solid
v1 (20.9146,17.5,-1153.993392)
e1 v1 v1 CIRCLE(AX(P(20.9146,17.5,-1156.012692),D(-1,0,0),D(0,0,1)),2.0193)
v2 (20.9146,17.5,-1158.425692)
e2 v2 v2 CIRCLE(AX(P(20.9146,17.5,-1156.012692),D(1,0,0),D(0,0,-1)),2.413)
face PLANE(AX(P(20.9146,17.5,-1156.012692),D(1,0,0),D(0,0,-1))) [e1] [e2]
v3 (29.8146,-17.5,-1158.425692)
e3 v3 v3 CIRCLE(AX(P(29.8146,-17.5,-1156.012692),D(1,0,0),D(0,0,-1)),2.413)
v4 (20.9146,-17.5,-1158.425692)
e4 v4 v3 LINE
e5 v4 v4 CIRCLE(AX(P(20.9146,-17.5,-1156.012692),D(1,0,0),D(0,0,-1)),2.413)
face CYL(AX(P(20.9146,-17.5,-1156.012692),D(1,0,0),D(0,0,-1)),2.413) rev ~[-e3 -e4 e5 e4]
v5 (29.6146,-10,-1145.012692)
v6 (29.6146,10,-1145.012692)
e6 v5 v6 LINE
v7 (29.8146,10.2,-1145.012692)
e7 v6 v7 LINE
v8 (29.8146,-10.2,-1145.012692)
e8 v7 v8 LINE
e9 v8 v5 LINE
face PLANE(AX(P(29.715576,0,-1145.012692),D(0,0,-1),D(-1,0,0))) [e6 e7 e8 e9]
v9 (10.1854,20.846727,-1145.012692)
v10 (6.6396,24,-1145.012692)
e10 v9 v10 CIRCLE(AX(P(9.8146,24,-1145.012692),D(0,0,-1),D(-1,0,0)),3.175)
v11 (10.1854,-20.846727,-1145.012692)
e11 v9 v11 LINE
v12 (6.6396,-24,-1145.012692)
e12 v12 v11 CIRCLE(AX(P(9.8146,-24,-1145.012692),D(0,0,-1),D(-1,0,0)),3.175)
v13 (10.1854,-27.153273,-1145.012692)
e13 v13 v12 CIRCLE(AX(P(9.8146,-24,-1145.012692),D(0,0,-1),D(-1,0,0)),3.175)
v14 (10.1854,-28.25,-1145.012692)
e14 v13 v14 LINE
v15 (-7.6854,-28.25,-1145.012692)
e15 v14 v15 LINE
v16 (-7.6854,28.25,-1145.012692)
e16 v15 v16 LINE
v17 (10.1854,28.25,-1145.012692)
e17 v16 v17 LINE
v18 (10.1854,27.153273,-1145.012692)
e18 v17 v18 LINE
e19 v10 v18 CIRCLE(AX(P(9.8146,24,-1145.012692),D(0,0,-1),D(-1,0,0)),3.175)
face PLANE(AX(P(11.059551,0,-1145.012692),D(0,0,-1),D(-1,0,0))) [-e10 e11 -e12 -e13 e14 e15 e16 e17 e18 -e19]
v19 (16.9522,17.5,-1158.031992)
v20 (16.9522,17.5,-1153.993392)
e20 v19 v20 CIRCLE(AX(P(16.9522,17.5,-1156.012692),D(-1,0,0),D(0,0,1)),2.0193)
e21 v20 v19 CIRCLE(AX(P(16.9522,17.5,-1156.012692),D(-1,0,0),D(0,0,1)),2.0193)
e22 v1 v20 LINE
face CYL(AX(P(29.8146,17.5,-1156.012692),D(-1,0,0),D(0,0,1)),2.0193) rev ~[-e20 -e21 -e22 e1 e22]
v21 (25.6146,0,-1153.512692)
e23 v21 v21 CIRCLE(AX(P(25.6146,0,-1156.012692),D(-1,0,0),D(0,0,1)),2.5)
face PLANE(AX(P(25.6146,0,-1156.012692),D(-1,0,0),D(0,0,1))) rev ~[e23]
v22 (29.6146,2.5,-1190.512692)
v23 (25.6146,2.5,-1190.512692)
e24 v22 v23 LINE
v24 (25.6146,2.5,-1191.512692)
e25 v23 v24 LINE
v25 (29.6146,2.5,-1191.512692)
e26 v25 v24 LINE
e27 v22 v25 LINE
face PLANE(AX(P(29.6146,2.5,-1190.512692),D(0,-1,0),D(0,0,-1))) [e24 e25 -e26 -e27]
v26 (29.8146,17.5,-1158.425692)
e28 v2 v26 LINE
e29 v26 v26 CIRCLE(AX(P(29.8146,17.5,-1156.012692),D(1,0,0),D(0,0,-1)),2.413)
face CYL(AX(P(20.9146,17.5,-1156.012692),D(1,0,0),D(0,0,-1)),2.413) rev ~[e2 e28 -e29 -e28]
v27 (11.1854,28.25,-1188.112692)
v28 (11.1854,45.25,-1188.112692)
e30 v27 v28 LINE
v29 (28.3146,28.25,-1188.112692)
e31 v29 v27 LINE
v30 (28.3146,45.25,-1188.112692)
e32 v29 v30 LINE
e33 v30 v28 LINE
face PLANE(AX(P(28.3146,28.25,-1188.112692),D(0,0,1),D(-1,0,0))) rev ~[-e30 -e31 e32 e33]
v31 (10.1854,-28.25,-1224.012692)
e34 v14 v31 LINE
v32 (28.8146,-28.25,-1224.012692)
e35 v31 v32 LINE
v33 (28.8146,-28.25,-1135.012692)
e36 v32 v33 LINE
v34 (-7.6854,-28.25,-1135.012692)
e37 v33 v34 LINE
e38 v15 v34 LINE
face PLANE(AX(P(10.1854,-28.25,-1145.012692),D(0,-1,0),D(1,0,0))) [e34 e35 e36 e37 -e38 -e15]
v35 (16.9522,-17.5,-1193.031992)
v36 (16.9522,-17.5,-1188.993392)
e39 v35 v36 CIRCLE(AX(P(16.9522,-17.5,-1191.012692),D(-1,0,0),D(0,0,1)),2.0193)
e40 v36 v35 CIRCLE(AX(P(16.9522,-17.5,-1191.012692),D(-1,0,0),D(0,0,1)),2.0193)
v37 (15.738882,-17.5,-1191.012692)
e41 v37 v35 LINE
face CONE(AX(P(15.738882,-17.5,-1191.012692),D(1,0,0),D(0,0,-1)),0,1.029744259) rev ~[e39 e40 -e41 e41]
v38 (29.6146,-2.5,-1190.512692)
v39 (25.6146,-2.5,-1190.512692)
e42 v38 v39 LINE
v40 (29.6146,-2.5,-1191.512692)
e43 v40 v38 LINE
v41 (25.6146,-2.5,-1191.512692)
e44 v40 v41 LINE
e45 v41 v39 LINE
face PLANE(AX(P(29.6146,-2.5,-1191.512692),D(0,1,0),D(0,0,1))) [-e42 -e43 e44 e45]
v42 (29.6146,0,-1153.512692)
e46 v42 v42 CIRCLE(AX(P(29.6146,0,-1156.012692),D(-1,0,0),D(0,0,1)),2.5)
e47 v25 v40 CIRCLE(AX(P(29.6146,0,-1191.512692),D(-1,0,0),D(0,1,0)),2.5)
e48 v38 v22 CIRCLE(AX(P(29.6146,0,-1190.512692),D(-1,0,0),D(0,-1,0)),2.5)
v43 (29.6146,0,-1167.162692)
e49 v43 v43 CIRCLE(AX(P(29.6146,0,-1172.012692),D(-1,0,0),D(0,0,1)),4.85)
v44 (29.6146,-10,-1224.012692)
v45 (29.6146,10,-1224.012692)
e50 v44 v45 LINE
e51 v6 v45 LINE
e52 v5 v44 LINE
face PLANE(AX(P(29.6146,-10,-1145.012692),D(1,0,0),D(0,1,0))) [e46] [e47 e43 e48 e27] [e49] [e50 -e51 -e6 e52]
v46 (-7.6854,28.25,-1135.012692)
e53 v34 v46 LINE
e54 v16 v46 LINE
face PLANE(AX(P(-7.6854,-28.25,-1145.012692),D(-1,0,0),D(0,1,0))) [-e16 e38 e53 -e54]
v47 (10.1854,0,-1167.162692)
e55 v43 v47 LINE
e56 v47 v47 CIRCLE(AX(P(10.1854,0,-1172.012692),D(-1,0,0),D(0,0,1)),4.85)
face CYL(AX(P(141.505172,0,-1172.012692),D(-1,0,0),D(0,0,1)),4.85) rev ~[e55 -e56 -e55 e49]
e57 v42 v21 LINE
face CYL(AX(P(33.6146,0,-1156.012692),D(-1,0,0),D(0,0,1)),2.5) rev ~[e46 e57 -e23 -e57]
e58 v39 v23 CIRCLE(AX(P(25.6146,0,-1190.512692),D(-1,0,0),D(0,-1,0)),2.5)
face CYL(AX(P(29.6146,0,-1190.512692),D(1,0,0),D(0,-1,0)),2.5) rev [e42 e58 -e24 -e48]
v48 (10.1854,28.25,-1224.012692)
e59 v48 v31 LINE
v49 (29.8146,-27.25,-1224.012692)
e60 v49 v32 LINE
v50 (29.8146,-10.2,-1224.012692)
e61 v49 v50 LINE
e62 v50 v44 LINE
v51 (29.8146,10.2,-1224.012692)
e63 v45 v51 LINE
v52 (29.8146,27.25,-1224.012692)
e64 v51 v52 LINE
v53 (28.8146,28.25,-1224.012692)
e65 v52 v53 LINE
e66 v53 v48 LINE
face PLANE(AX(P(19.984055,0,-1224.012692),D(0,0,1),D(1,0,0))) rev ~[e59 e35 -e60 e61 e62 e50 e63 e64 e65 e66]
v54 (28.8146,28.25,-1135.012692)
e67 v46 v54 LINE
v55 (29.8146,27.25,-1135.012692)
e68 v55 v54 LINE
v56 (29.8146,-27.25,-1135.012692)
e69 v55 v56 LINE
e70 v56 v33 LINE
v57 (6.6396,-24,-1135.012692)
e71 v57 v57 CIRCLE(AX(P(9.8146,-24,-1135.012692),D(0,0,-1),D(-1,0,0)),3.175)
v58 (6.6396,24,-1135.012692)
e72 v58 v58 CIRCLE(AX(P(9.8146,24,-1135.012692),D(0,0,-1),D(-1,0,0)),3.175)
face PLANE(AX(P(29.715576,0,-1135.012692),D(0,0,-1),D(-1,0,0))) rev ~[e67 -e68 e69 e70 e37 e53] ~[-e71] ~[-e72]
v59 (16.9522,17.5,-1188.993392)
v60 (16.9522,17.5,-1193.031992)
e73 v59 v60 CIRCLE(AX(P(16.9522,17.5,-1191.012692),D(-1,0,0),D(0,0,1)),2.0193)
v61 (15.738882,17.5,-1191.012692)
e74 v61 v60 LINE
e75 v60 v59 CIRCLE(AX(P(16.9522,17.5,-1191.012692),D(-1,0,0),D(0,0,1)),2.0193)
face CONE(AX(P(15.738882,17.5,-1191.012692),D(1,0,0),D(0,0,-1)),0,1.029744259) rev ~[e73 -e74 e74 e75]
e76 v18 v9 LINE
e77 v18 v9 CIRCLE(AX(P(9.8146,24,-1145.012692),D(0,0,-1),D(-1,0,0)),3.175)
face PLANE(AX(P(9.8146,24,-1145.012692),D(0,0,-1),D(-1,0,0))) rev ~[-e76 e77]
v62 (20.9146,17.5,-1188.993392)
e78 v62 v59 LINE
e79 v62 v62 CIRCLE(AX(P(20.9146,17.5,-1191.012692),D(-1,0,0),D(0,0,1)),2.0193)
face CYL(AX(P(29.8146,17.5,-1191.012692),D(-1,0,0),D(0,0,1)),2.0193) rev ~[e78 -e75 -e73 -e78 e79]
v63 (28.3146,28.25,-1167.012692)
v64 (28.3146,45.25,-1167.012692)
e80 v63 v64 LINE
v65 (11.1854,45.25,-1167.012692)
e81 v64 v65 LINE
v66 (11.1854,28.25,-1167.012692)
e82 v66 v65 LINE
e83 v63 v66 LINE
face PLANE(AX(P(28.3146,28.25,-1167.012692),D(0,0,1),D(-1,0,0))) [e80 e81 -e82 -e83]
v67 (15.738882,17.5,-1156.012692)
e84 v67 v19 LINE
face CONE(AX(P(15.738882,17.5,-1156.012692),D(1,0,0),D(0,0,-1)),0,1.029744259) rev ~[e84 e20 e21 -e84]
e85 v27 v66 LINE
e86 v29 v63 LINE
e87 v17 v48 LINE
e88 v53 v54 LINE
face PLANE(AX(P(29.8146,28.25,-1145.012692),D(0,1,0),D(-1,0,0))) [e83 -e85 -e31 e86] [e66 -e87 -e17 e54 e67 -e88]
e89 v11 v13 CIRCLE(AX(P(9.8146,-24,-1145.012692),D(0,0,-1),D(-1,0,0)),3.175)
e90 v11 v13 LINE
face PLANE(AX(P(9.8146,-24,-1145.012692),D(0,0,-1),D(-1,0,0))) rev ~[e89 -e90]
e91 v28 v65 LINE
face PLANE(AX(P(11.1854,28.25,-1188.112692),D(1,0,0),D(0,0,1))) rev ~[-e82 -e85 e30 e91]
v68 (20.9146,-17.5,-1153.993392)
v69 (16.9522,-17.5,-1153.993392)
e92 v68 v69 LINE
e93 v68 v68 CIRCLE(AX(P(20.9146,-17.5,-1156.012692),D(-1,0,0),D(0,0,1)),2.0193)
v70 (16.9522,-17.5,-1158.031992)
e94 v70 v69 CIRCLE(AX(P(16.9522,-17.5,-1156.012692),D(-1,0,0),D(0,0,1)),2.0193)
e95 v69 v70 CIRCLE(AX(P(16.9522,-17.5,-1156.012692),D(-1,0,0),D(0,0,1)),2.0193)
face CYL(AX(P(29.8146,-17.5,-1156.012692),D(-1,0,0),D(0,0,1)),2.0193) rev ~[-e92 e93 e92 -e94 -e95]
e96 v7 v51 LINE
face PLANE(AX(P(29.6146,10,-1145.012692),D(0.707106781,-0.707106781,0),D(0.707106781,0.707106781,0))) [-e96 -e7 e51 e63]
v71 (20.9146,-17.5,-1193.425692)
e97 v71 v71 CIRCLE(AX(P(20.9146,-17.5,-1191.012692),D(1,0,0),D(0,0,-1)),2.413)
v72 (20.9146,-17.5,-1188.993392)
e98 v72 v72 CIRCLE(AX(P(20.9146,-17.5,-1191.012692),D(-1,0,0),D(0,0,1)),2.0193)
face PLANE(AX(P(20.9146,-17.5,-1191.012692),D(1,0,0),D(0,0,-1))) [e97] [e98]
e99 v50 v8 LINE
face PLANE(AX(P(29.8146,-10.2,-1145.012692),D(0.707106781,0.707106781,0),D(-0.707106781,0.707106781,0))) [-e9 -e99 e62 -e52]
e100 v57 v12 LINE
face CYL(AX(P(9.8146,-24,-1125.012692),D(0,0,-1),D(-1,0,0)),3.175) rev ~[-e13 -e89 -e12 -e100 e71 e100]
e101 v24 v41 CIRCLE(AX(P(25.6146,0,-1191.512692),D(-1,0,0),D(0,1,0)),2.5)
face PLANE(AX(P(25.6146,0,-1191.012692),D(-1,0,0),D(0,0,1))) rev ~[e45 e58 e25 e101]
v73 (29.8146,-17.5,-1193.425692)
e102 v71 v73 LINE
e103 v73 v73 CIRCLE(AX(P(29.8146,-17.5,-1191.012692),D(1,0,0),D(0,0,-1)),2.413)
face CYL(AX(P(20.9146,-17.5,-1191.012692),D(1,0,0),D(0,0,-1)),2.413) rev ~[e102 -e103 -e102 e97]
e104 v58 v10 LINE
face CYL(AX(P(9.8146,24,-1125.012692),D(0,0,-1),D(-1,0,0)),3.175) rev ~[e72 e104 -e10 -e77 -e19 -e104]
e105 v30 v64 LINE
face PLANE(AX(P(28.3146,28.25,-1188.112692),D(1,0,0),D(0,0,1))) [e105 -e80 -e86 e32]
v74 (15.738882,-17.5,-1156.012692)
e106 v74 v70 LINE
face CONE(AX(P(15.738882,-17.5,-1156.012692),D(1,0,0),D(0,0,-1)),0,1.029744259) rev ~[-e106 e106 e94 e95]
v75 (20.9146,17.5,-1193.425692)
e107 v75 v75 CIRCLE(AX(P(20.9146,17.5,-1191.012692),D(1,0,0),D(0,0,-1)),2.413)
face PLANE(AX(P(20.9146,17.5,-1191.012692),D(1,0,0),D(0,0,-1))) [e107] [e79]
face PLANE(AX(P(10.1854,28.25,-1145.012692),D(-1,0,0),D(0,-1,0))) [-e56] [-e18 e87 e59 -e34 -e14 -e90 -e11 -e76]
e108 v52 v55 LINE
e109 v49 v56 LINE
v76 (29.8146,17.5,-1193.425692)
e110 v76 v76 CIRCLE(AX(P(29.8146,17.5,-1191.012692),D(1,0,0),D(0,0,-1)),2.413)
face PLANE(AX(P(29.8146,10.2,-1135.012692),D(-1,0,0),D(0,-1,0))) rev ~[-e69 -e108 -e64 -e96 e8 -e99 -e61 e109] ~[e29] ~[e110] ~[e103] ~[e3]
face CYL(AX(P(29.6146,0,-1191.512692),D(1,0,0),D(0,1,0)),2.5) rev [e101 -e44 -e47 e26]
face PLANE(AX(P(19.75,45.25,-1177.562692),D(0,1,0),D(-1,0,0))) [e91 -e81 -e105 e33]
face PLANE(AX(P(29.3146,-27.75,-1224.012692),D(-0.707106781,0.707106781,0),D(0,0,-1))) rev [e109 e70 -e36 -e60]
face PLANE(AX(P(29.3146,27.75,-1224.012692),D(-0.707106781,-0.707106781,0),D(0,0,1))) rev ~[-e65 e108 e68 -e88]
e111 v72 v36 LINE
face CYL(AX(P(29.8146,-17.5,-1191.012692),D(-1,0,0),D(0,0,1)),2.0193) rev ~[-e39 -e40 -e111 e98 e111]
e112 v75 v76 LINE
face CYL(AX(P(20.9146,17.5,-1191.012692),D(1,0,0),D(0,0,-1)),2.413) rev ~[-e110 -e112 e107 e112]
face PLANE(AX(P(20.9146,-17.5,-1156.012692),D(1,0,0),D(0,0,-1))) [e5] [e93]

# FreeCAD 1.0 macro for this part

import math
import FreeCAD as App
import Part
import Sketcher


def edges_at(feature, points):
    """Names of the edges that pass closest to the given points."""
    edges = feature.Shape.Edges
    near = lambda p: min(range(len(edges)), key=lambda i: edges[i].distToShape(Part.Vertex(*p))[0])
    return sorted({f"Edge{near(p) + 1}" for p in points})


def add_polygon(sketch, points):
    """Adds a closed chain of lines whose ends are joined by coincident constraints."""
    first, n = sketch.GeometryCount, len(points)
    for a, b in zip(points, points[1:] + points[:1]):
        sketch.addGeometry(Part.LineSegment(App.Vector(*a, 0), App.Vector(*b, 0)), False)
    for i in range(n):
        sketch.addConstraint(Sketcher.Constraint("Coincident", first + i, 2, first + (i + 1) % n, 1))

doc = App.newDocument("Part")
body = doc.addObject("PartDesign::Body", "Body")

# Sketch on XY plane
sketch1 = body.newObject("Sketcher::SketchObject", "Sketch")
sketch1.AttachmentSupport = (doc.getObject("XY_Plane"), [""])
sketch1.MapMode = "FlatFace"
sketch1.AttachmentOffset = App.Placement(App.Vector(0, 0, -1145.012692), App.Rotation())
add_polygon(sketch1, [(29.81, 28.25), (-7.69, 28.25), (-7.69, -28.25), (29.81, -28.25), (29.81, -10.2), (29.61, -10), (29.61, 10), (29.81, 10.2)])  # lines 0-7
sketch1.addConstraint([
    Sketcher.Constraint("Horizontal", 0),
    Sketcher.Constraint("Vertical", 1),
    Sketcher.Constraint("Horizontal", 2),
    Sketcher.Constraint("Vertical", 3),
    Sketcher.Constraint("Vertical", 5),
    Sketcher.Constraint("Vertical", 7),
    Sketcher.Constraint("Symmetric", 3, 2, 6, 2, -1),
    Sketcher.Constraint("Perpendicular", 4, 6),
    Sketcher.Constraint("Equal", 3, 7),
    Sketcher.Constraint("Equal", 4, 6),
    Sketcher.Constraint("DistanceY", 5, 1, 5, 2, 20.0),
    Sketcher.Constraint("DistanceX", 0, 2, 0, 1, 37.5),
    Sketcher.Constraint("DistanceY", 1, 2, 1, 1, 56.5),
    Sketcher.Constraint("DistanceY", 3, 1, 3, 2, 18.05),
    Sketcher.Constraint("DistanceX", 0, 2, -1, 1, 7.6854),
])
pad1 = body.newObject("PartDesign::Pad", "Pad")
pad1.Profile = sketch1
pad1.Length = 10

# Sketch on XY plane
sketch2 = body.newObject("Sketcher::SketchObject", "Sketch001")
sketch2.AttachmentSupport = (doc.getObject("XY_Plane"), [""])
sketch2.MapMode = "FlatFace"
sketch2.AttachmentOffset = App.Placement(App.Vector(0, 0, -1145.012692), App.Rotation())
add_polygon(sketch2, [(29.81, 28.25), (29.81, 10.2), (29.61, 10), (29.61, -10), (29.81, -10.2), (29.81, -28.25), (10.19, -28.25), (10.19, 28.25)])  # lines 0-7
sketch2.addConstraint([
    Sketcher.Constraint("Vertical", 0),
    Sketcher.Constraint("Vertical", 2),
    Sketcher.Constraint("Vertical", 4),
    Sketcher.Constraint("Horizontal", 5),
    Sketcher.Constraint("Vertical", 6),
    Sketcher.Constraint("Horizontal", 7),
    Sketcher.Constraint("Symmetric", 0, 2, 3, 2, -1),
    Sketcher.Constraint("Perpendicular", 1, 3),
    Sketcher.Constraint("Equal", 0, 4),
    Sketcher.Constraint("Equal", 1, 3),
    Sketcher.Constraint("DistanceY", 2, 2, 2, 1, 20.0),
    Sketcher.Constraint("DistanceY", 6, 1, 6, 2, 56.5),
    Sketcher.Constraint("DistanceY", 0, 2, 0, 1, 18.05),
    Sketcher.Constraint("DistanceX", 5, 2, 5, 1, 19.6292),
    Sketcher.Constraint("DistanceX", -1, 1, 0, 2, 29.8146),
])
pad2 = body.newObject("PartDesign::Pad", "Pad001")
pad2.Profile = sketch2
pad2.Length = 79
pad2.Reversed = True

# Sketch on XY plane
sketch3 = body.newObject("Sketcher::SketchObject", "Sketch002")
sketch3.AttachmentSupport = (doc.getObject("XY_Plane"), [""])
sketch3.MapMode = "FlatFace"
sketch3.AttachmentOffset = App.Placement(App.Vector(0, 0, -1135.012692), App.Rotation())
add_polygon(sketch3, [(29.61, -10), (29.81, -10.2), (29.81, 10.2), (29.61, 10)])  # lines 0-3
sketch3.addConstraint([
    Sketcher.Constraint("Vertical", 1),
    Sketcher.Constraint("Vertical", 3),
    Sketcher.Constraint("Perpendicular", 0, 2),
    Sketcher.Constraint("Equal", 0, 2),
    Sketcher.Constraint("DistanceY", 3, 2, 3, 1, 20.0),
    Sketcher.Constraint("DistanceY", 1, 1, 1, 2, 20.4),
    Sketcher.Constraint("DistanceY", -1, 1, 2, 2, 10.0),
    Sketcher.Constraint("DistanceX", -1, 1, 0, 2, 29.8146),
])
pad3 = body.newObject("PartDesign::Pad", "Pad002")
pad3.Profile = sketch3
pad3.Length = 10
pad3.Reversed = True

# Sketch on YZ plane
sketch4 = body.newObject("Sketcher::SketchObject", "Sketch003")
sketch4.AttachmentSupport = (doc.getObject("YZ_Plane"), [""])
sketch4.MapMode = "FlatFace"
sketch4.AttachmentOffset = App.Placement(App.Vector(0, 0, 29.6146), App.Rotation())
sketch4.addGeometry(Part.Circle(App.Vector(0, -1172, 0), App.Vector(0, 0, 1), 4.8), False)
sketch4.addConstraint([
    Sketcher.Constraint("PointOnObject", 0, 3, -2),
    Sketcher.Constraint("Diameter", 0, 9.7),
    Sketcher.Constraint("DistanceY", 0, 3, -1, 1, 1172.012692),
])
doc.recompute()
hole = body.newObject("PartDesign::Hole", "Hole")
hole.Profile = sketch4
hole.ThreadType = "None"
hole.Diameter = 9.7
hole.DepthType = "ThroughAll"

# Sketch on YZ plane
sketch5 = body.newObject("Sketcher::SketchObject", "Sketch004")
sketch5.AttachmentSupport = (doc.getObject("YZ_Plane"), [""])
sketch5.MapMode = "FlatFace"
sketch5.AttachmentOffset = App.Placement(App.Vector(0, 0, 29.8146), App.Rotation())
sketch5.addGeometry([
    Part.Circle(App.Vector(17.5, -1156, 0), App.Vector(0, 0, 1), 2),
    Part.Circle(App.Vector(17.5, -1191, 0), App.Vector(0, 0, 1), 2),
    Part.Circle(App.Vector(-17.5, -1156, 0), App.Vector(0, 0, 1), 2),
    Part.Circle(App.Vector(-17.5, -1191, 0), App.Vector(0, 0, 1), 2),
], False)
sketch5.addConstraint([
    Sketcher.Constraint("Equal", 0, 1),
    Sketcher.Constraint("Equal", 1, 2),
    Sketcher.Constraint("Equal", 2, 3),
    Sketcher.Constraint("Symmetric", 0, 3, 2, 3, -2),
    Sketcher.Constraint("Symmetric", 1, 3, 3, 3, -2),
    Sketcher.Constraint("Vertical", 0, 3, 1, 3),
    Sketcher.Constraint("DistanceY", 1, 3, 0, 3, 35.0),
    Sketcher.Constraint("DistanceX", 2, 3, 0, 3, 35.0),
    Sketcher.Constraint("Diameter", 0, 4.0386),
    Sketcher.Constraint("DistanceY", 0, 3, -1, 1, 1156.012692),
])
doc.recompute()
hole2 = body.newObject("PartDesign::Hole", "Hole001")
hole2.Profile = sketch5
hole2.ThreadType = "None"
hole2.Diameter = 4.0386
hole2.DepthType = "Dimension"
hole2.Depth = 12.8624
hole2.DrillPoint = "Angled"
hole2.DrillPointAngle = 118
hole2.HoleCutType = "Counterbore"
hole2.HoleCutDiameter = 4.826
hole2.HoleCutDepth = 8.9

# Sketch on XY plane
sketch6 = body.newObject("Sketcher::SketchObject", "Sketch005")
sketch6.AttachmentSupport = (doc.getObject("XY_Plane"), [""])
sketch6.MapMode = "FlatFace"
sketch6.AttachmentOffset = App.Placement(App.Vector(0, 0, -1135.012692), App.Rotation())
sketch6.addGeometry([
    Part.Circle(App.Vector(9.8, 24, 0), App.Vector(0, 0, 1), 3.2),
    Part.Circle(App.Vector(9.8, -24, 0), App.Vector(0, 0, 1), 3.2),
], False)
sketch6.addConstraint([
    Sketcher.Constraint("Equal", 0, 1),
    Sketcher.Constraint("Symmetric", 0, 3, 1, 3, -1),
    Sketcher.Constraint("Diameter", 0, 6.35),
    Sketcher.Constraint("DistanceY", -1, 1, 0, 3, 24.0),
    Sketcher.Constraint("DistanceX", -1, 1, 0, 3, 9.8146),
])
doc.recompute()
hole3 = body.newObject("PartDesign::Hole", "Hole002")
hole3.Profile = sketch6
hole3.ThreadType = "None"
hole3.Diameter = 6.35
hole3.DepthType = "Dimension"
hole3.Depth = 10
hole3.DrillPoint = "Flat"

# Sketch on YZ plane
sketch7 = body.newObject("Sketcher::SketchObject", "Sketch006")
sketch7.AttachmentSupport = (doc.getObject("YZ_Plane"), [""])
sketch7.MapMode = "FlatFace"
sketch7.AttachmentOffset = App.Placement(App.Vector(0, 0, 29.6146), App.Rotation())
sketch7.addGeometry([
    Part.LineSegment(App.Vector(2.5, -1191.5, 0), App.Vector(2.5, -1190.5, 0)),
    Part.ArcOfCircle(Part.Circle(App.Vector(0, -1190.5, 0), App.Vector(0, 0, 1), 2.5), math.radians(0), math.radians(180)),
    Part.LineSegment(App.Vector(-2.5, -1190.5, 0), App.Vector(-2.5, -1191.5, 0)),
    Part.ArcOfCircle(Part.Circle(App.Vector(0, -1191.5, 0), App.Vector(0, 0, 1), 2.5), math.radians(180), math.radians(360)),
], False)
sketch7.addConstraint([
    Sketcher.Constraint("Tangent", 0, 2, 1, 1),
    Sketcher.Constraint("Tangent", 1, 2, 2, 1),
    Sketcher.Constraint("Tangent", 2, 2, 3, 1),
    Sketcher.Constraint("Tangent", 3, 2, 0, 1),
    Sketcher.Constraint("Vertical", 0),
    Sketcher.Constraint("Vertical", 2),
    Sketcher.Constraint("PointOnObject", 1, 3, -2),
    Sketcher.Constraint("Radius", 1, 2.5),
    Sketcher.Constraint("DistanceY", 0, 1, 0, 2, 1.0),
    Sketcher.Constraint("DistanceY", 1, 3, -1, 1, 1190.512692),
])
pocket1 = body.newObject("PartDesign::Pocket", "Pocket")
pocket1.Profile = sketch7
pocket1.Length = 4

# Sketch on YZ plane
sketch8 = body.newObject("Sketcher::SketchObject", "Sketch007")
sketch8.AttachmentSupport = (doc.getObject("YZ_Plane"), [""])
sketch8.MapMode = "FlatFace"
sketch8.AttachmentOffset = App.Placement(App.Vector(0, 0, 29.6146), App.Rotation())
sketch8.addGeometry(Part.Circle(App.Vector(0, -1156, 0), App.Vector(0, 0, 1), 2.5), False)
sketch8.addConstraint([
    Sketcher.Constraint("PointOnObject", 0, 3, -2),
    Sketcher.Constraint("Diameter", 0, 5.0),
    Sketcher.Constraint("DistanceY", 0, 3, -1, 1, 1156.012692),
])
doc.recompute()
hole4 = body.newObject("PartDesign::Hole", "Hole003")
hole4.Profile = sketch8
hole4.ThreadType = "None"
hole4.Diameter = 5
hole4.DepthType = "Dimension"
hole4.Depth = 4
hole4.DrillPoint = "Flat"

# Sketch on XZ plane
sketch9 = body.newObject("Sketcher::SketchObject", "Sketch008")
sketch9.AttachmentSupport = (doc.getObject("XZ_Plane"), [""])
sketch9.MapMode = "FlatFace"
sketch9.AttachmentOffset = App.Placement(App.Vector(0, 0, -28.25), App.Rotation())
add_polygon(sketch9, [(28, -1167), (28, -1188), (11, -1188), (11, -1167)])  # lines 0-3
sketch9.addConstraint([
    Sketcher.Constraint("Vertical", 0),
    Sketcher.Constraint("Horizontal", 1),
    Sketcher.Constraint("Vertical", 2),
    Sketcher.Constraint("Horizontal", 3),
    Sketcher.Constraint("DistanceY", 0, 2, 0, 1, 21.1),
    Sketcher.Constraint("DistanceX", 1, 2, 1, 1, 17.1292),
    Sketcher.Constraint("DistanceX", -1, 1, 0, 2, 28.3146),
    Sketcher.Constraint("DistanceY", 0, 2, -1, 1, 1188.112692),
])
pad4 = body.newObject("PartDesign::Pad", "Pad003")
pad4.Profile = sketch9
pad4.Length = 17
pad4.Reversed = True
doc.recompute()

chamfer = body.newObject("PartDesign::Chamfer", "Chamfer")
chamfer.Base = (pad4, edges_at(pad4, [(29.815, -28.25, -1179.513), (29.815, 28.25, -1179.513)]))
chamfer.Size = 1

doc.recompute()
